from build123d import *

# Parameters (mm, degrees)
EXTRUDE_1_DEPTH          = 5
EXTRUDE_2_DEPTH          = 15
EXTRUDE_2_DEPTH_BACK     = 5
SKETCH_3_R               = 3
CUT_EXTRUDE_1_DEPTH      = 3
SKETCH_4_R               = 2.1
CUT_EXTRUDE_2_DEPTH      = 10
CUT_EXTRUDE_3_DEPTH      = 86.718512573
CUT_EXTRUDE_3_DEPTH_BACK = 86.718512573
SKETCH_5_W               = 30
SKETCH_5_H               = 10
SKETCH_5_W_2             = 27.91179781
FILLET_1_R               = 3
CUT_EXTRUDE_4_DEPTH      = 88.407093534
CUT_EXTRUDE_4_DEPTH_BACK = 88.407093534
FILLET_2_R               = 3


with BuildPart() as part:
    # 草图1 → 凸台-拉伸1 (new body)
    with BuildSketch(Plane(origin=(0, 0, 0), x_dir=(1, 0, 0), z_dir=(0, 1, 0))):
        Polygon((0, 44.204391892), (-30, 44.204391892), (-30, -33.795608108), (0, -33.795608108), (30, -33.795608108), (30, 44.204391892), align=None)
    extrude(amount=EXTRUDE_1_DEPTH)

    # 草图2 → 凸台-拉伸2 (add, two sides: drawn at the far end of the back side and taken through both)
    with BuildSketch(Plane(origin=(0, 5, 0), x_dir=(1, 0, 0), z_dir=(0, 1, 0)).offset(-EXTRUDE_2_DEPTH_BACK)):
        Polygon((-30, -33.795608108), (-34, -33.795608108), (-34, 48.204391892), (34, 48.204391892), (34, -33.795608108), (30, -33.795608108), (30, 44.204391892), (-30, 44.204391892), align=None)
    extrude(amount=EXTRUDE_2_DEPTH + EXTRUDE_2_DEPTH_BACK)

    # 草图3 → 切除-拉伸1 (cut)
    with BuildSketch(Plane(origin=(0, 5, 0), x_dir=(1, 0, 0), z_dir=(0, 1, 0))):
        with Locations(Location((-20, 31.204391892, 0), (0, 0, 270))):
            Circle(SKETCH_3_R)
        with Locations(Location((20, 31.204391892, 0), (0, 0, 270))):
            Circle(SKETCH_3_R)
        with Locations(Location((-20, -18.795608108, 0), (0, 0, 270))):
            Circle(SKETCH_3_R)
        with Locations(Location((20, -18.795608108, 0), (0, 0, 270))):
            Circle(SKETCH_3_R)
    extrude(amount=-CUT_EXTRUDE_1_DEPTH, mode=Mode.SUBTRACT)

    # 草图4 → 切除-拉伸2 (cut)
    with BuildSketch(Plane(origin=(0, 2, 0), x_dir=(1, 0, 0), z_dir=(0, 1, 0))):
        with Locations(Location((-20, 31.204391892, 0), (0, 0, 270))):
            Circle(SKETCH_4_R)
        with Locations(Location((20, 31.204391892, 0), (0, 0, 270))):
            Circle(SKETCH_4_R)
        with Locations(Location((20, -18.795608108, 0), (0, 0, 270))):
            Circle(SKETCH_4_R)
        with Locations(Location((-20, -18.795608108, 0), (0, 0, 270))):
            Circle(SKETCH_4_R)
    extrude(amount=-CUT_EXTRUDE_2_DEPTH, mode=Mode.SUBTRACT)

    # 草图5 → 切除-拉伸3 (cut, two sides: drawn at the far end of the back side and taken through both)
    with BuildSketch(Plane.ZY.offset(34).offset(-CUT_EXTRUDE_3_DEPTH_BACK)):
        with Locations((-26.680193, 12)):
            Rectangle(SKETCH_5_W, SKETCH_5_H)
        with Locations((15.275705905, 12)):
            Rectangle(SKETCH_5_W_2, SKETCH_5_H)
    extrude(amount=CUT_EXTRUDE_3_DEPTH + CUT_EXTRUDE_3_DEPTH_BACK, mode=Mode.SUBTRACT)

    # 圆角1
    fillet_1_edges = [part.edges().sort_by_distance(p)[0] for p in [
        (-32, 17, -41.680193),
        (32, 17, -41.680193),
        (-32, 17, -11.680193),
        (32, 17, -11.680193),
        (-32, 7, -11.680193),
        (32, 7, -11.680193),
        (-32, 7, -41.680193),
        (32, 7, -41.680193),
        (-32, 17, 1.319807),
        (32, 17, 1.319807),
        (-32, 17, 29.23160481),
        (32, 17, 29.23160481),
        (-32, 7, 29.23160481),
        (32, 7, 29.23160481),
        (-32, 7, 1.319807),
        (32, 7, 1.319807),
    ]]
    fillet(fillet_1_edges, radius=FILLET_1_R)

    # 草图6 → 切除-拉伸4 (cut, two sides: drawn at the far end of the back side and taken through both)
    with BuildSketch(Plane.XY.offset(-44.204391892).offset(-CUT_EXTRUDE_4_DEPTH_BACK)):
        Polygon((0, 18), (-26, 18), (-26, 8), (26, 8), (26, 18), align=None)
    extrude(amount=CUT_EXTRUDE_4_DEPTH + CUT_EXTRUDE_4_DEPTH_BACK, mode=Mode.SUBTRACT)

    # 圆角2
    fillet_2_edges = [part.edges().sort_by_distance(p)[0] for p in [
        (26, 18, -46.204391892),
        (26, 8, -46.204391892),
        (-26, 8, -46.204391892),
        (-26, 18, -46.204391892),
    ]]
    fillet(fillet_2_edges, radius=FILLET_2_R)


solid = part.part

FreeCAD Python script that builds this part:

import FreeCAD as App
import Part
import Sketcher

V = App.Vector
Q = App.Units.Quantity


def edges_at(feature, points):
    """Names of the edges that pass closest to the given points."""
    edges = feature.Shape.Edges
    near = lambda p: min(range(len(edges)), key=lambda i: edges[i].distToShape(Part.Vertex(*p))[0])
    return sorted({f"Edge{near(p) + 1}" for p in points})

doc = App.newDocument("Part")
params = doc.addObject("Spreadsheet::Sheet", "Params")
for row, (alias, value) in enumerate([
    ("sketch1_width", "60 mm"),
    ("sketch1_height", "78 mm"),
    ("pad1_length", "5 mm"),
    ("sketch2_width", "4 mm"),
    ("sketch2_width2", "60 mm"),
    ("sketch2_height", "78 mm"),
    ("sketch2_height2", "82 mm"),
    ("pad2_length", "15 mm"),
    ("pad2_length2", "5 mm"),
    ("sketch3_diameter", "6 mm"),
    ("pocket1_length", "3 mm"),
    ("sketch4_diameter", "4.2 mm"),
    ("pocket2_length", "10 mm"),
    ("sketch5_width", "10 mm"),
    ("sketch5_height", "30 mm"),
    ("fillet_radius", "3 mm"),
    ("sketch6_width", "52 mm"),
    ("sketch6_height", "10 mm"),
    ("fillet2_radius", "3 mm"),
], start=1):
    params.set(f"A{row}", alias)
    params.set(f"B{row}", "=" + value)
    params.setAlias(f"B{row}", alias)

body = doc.addObject("PartDesign::Body", "Body")

# Sketch on XZ plane
sketch1 = body.newObject("Sketcher::SketchObject", "Sketch")
sketch1.AttachmentSupport = (doc.getObject("XZ_Plane"), [""])
sketch1.MapMode = "FlatFace"
sketch1.addGeometry([
    Part.LineSegment(V(-30, -44, 0), V(-30, 34, 0)),
    Part.LineSegment(V(-30, 34, 0), V(30, 34, 0)),
    Part.LineSegment(V(30, 34, 0), V(30, -44, 0)),
    Part.LineSegment(V(30, -44, 0), V(-30, -44, 0)),
], False)
sketch1.addConstraint([
    Sketcher.Constraint("Coincident", 0, 2, 1, 1),
    Sketcher.Constraint("Coincident", 1, 2, 2, 1),
    Sketcher.Constraint("Coincident", 2, 2, 3, 1),
    Sketcher.Constraint("Coincident", 3, 2, 0, 1),
    Sketcher.Constraint("Vertical", 0),
    Sketcher.Constraint("Horizontal", 1),
    Sketcher.Constraint("Vertical", 2),
    Sketcher.Constraint("Horizontal", 3),
    Sketcher.Constraint("DistanceX", 1, 1, 1, 2, Q("60 mm")),
    Sketcher.Constraint("DistanceY", 0, 1, 0, 2, Q("78 mm")),
    Sketcher.Constraint("DistanceX", 0, 2, -1, 1, Q("30 mm")),
    Sketcher.Constraint("DistanceY", -1, 1, 0, 2, Q("33.795608 mm")),
])
sketch1.setExpression("Constraints[8]", "Params.sketch1_width")
sketch1.setExpression("Constraints[9]", "Params.sketch1_height")
pad1 = body.newObject("PartDesign::Pad", "Pad")
pad1.Profile = sketch1
pad1.setExpression("Length", "Params.pad1_length")
pad1.Reversed = True

# Sketch on XZ plane
sketch2 = body.newObject("Sketcher::SketchObject", "Sketch001")
sketch2.AttachmentSupport = (doc.getObject("XZ_Plane"), [""])
sketch2.MapMode = "FlatFace"
sketch2.AttachmentOffset = App.Placement(V(0, 0, -5), App.Rotation())
sketch2.addGeometry([
    Part.LineSegment(V(-34, 33.8, 0), V(-30, 33.8, 0)),  # 0
    Part.LineSegment(V(-30, 33.8, 0), V(-30, -44.2, 0)),  # 1
    Part.LineSegment(V(-30, -44.2, 0), V(30, -44.2, 0)),  # 2
    Part.LineSegment(V(30, -44.2, 0), V(30, 33.8, 0)),  # 3
    Part.LineSegment(V(30, 33.8, 0), V(34, 33.8, 0)),  # 4
    Part.LineSegment(V(34, 33.8, 0), V(34, -48.2, 0)),  # 5
    Part.LineSegment(V(34, -48.2, 0), V(-34, -48.2, 0)),  # 6
    Part.LineSegment(V(-34, -48.2, 0), V(-34, 33.8, 0)),  # 7
], False)
sketch2.addConstraint([
    Sketcher.Constraint("Coincident", 0, 2, 1, 1),
    Sketcher.Constraint("Coincident", 1, 2, 2, 1),
    Sketcher.Constraint("Coincident", 2, 2, 3, 1),
    Sketcher.Constraint("Coincident", 3, 2, 4, 1),
    Sketcher.Constraint("Coincident", 4, 2, 5, 1),
    Sketcher.Constraint("Coincident", 5, 2, 6, 1),
    Sketcher.Constraint("Coincident", 6, 2, 7, 1),
    Sketcher.Constraint("Coincident", 7, 2, 0, 1),
    Sketcher.Constraint("Horizontal", 0),
    Sketcher.Constraint("Vertical", 1),
    Sketcher.Constraint("Horizontal", 2),
    Sketcher.Constraint("Vertical", 3),
    Sketcher.Constraint("Horizontal", 4),
    Sketcher.Constraint("Vertical", 5),
    Sketcher.Constraint("Horizontal", 6),
    Sketcher.Constraint("Vertical", 7),
    Sketcher.Constraint("Symmetric", 0, 2, 3, 2, -2),
    Sketcher.Constraint("Equal", 0, 4),
    Sketcher.Constraint("DistanceX", 0, 1, 0, 2, Q("4 mm")),
    Sketcher.Constraint("DistanceX", 2, 1, 2, 2, Q("60 mm")),
    Sketcher.Constraint("DistanceY", 1, 2, 1, 1, Q("78 mm")),
    Sketcher.Constraint("DistanceY", 5, 2, 5, 1, Q("82 mm")),
    Sketcher.Constraint("DistanceY", -1, 1, 0, 2, Q("33.795608 mm")),
])
sketch2.setExpression("Constraints[18]", "Params.sketch2_width")
sketch2.setExpression("Constraints[19]", "Params.sketch2_width2")
sketch2.setExpression("Constraints[20]", "Params.sketch2_height")
sketch2.setExpression("Constraints[21]", "Params.sketch2_height2")
pad2 = body.newObject("PartDesign::Pad", "Pad001")
pad2.Profile = sketch2
pad2.Type = "TwoLengths"
pad2.setExpression("Length", "Params.pad2_length")
pad2.setExpression("Length2", "Params.pad2_length2")
pad2.Reversed = True

# Sketch on XZ plane
sketch3 = body.newObject("Sketcher::SketchObject", "Sketch002")
sketch3.AttachmentSupport = (doc.getObject("XZ_Plane"), [""])
sketch3.MapMode = "FlatFace"
sketch3.AttachmentOffset = App.Placement(V(0, 0, -5), App.Rotation())
sketch3.addGeometry([
    Part.Circle(V(-20, -31.2, 0), V(0, 0, 1), 3),
    Part.Circle(V(20, -31.2, 0), V(0, 0, 1), 3),
    Part.Circle(V(-20, 18.8, 0), V(0, 0, 1), 3),
    Part.Circle(V(20, 18.8, 0), V(0, 0, 1), 3),
], False)
sketch3.addConstraint([
    Sketcher.Constraint("Equal", 0, 1),
    Sketcher.Constraint("Equal", 1, 2),
    Sketcher.Constraint("Equal", 2, 3),
    Sketcher.Constraint("Symmetric", 0, 3, 1, 3, -2),
    Sketcher.Constraint("Symmetric", 2, 3, 3, 3, -2),
    Sketcher.Constraint("Vertical", 0, 3, 2, 3),
    Sketcher.Constraint("Diameter", 0, Q("6 mm")),
    Sketcher.Constraint("DistanceX", 0, 3, -1, 1, Q("20 mm")),
    Sketcher.Constraint("DistanceY", 0, 3, 2, 3, Q("50 mm")),
    Sketcher.Constraint("DistanceY", 0, 3, -1, 1, Q("31.204392 mm")),
])
sketch3.setExpression("Constraints[6]", "Params.sketch3_diameter")
pocket1 = body.newObject("PartDesign::Pocket", "Pocket")
pocket1.Profile = sketch3
pocket1.setExpression("Length", "Params.pocket1_length")
pocket1.Reversed = True

# Sketch on XZ plane
sketch4 = body.newObject("Sketcher::SketchObject", "Sketch003")
sketch4.AttachmentSupport = (doc.getObject("XZ_Plane"), [""])
sketch4.MapMode = "FlatFace"
sketch4.AttachmentOffset = App.Placement(V(0, 0, -2), App.Rotation())
sketch4.addGeometry([
    Part.Circle(V(-20, -31.2, 0), V(0, 0, 1), 2.1),
    Part.Circle(V(20, -31.2, 0), V(0, 0, 1), 2.1),
    Part.Circle(V(20, 18.8, 0), V(0, 0, 1), 2.1),
    Part.Circle(V(-20, 18.8, 0), V(0, 0, 1), 2.1),
], False)
sketch4.addConstraint([
    Sketcher.Constraint("Equal", 0, 1),
    Sketcher.Constraint("Equal", 1, 2),
    Sketcher.Constraint("Equal", 2, 3),
    Sketcher.Constraint("Symmetric", 0, 3, 1, 3, -2),
    Sketcher.Constraint("Symmetric", 2, 3, 3, 3, -2),
    Sketcher.Constraint("Vertical", 1, 3, 2, 3),
    Sketcher.Constraint("Diameter", 0, Q("4.2 mm")),
    Sketcher.Constraint("DistanceX", 0, 3, -1, 1, Q("20 mm")),
    Sketcher.Constraint("DistanceY", 1, 3, 2, 3, Q("50 mm")),
    Sketcher.Constraint("DistanceY", 0, 3, -1, 1, Q("31.204392 mm")),
])
sketch4.setExpression("Constraints[6]", "Params.sketch4_diameter")
pocket2 = body.newObject("PartDesign::Pocket", "Pocket001")
pocket2.Profile = sketch4
pocket2.setExpression("Length", "Params.pocket2_length")
pocket2.Reversed = True

# Sketch on YZ plane
sketch5 = body.newObject("Sketcher::SketchObject", "Sketch004")
sketch5.AttachmentSupport = (doc.getObject("YZ_Plane"), [""])
sketch5.MapMode = "FlatFace"
sketch5.AttachmentOffset = App.Placement(V(0, 0, -34), App.Rotation())
sketch5.addGeometry([
    Part.LineSegment(V(17, -42, 0), V(7, -42, 0)),  # 0
    Part.LineSegment(V(7, -42, 0), V(7, -12, 0)),  # 1
    Part.LineSegment(V(7, -12, 0), V(17, -12, 0)),  # 2
    Part.LineSegment(V(17, -12, 0), V(17, -42, 0)),  # 3
    Part.LineSegment(V(17, 1, 0), V(7, 1, 0)),  # 4
    Part.LineSegment(V(7, 1, 0), V(7, 29, 0)),  # 5
    Part.LineSegment(V(7, 29, 0), V(17, 29, 0)),  # 6
    Part.LineSegment(V(17, 29, 0), V(17, 1, 0)),  # 7
], False)
sketch5.addConstraint([
    Sketcher.Constraint("Coincident", 0, 2, 1, 1),
    Sketcher.Constraint("Coincident", 1, 2, 2, 1),
    Sketcher.Constraint("Coincident", 2, 2, 3, 1),
    Sketcher.Constraint("Coincident", 3, 2, 0, 1),
    Sketcher.Constraint("Coincident", 4, 2, 5, 1),
    Sketcher.Constraint("Coincident", 5, 2, 6, 1),
    Sketcher.Constraint("Coincident", 6, 2, 7, 1),
    Sketcher.Constraint("Coincident", 7, 2, 4, 1),
    Sketcher.Constraint("Horizontal", 0),
    Sketcher.Constraint("Vertical", 1),
    Sketcher.Constraint("Horizontal", 2),
    Sketcher.Constraint("Vertical", 3),
    Sketcher.Constraint("Horizontal", 4),
    Sketcher.Constraint("Vertical", 5),
    Sketcher.Constraint("Horizontal", 6),
    Sketcher.Constraint("Vertical", 7),
    Sketcher.Constraint("Vertical", 1, 2, 4, 2),
    Sketcher.Constraint("Vertical", 3, 2, 6, 2),
    Sketcher.Constraint("DistanceX", 0, 2, 0, 1, Q("10 mm")),
    Sketcher.Constraint("DistanceY", 1, 1, 1, 2, Q("30 mm")),
    Sketcher.Constraint("DistanceX", -1, 1, 0, 2, Q("7 mm")),
    Sketcher.Constraint("DistanceY", 1, 2, 4, 2, Q("13 mm")),
    Sketcher.Constraint("DistanceY", 5, 1, 5, 2, Q("27.911798 mm")),
    Sketcher.Constraint("DistanceY", 0, 2, -1, 1, Q("41.680193 mm")),
])
sketch5.setExpression("Constraints[18]", "Params.sketch5_width")
sketch5.setExpression("Constraints[19]", "Params.sketch5_height")
pocket3 = body.newObject("PartDesign::Pocket", "Pocket002")
pocket3.Profile = sketch5
pocket3.Type = "ThroughAll"
pocket3.Midplane = True
doc.recompute()

fillet = body.newObject("PartDesign::Fillet", "Fillet")
fillet.Base = (pocket3, edges_at(pocket3, [
    (-32, 17, -41.68),
    (32, 17, -41.68),
    (-32, 17, -11.68),
    (32, 17, -11.68),
    (-32, 7, -11.68),
    (32, 7, -11.68),
    (-32, 7, -41.68),
    (32, 7, -41.68),
    (-32, 17, 1.32),
    (32, 17, 1.32),
    (-32, 17, 29.232),
    (32, 17, 29.232),
    (-32, 7, 29.232),
    (32, 7, 29.232),
    (-32, 7, 1.32),
    (32, 7, 1.32),
]))
fillet.setExpression("Radius", "Params.fillet_radius")

# Sketch on XY plane
sketch6 = body.newObject("Sketcher::SketchObject", "Sketch005")
sketch6.AttachmentSupport = (doc.getObject("XY_Plane"), [""])
sketch6.MapMode = "FlatFace"
sketch6.AttachmentOffset = App.Placement(V(0, 0, -44.204392), App.Rotation())
sketch6.addGeometry([
    Part.LineSegment(V(-26, 18, 0), V(-26, 8, 0)),
    Part.LineSegment(V(-26, 8, 0), V(26, 8, 0)),
    Part.LineSegment(V(26, 8, 0), V(26, 18, 0)),
    Part.LineSegment(V(26, 18, 0), V(-26, 18, 0)),
], False)
sketch6.addConstraint([
    Sketcher.Constraint("Coincident", 0, 2, 1, 1),
    Sketcher.Constraint("Coincident", 1, 2, 2, 1),
    Sketcher.Constraint("Coincident", 2, 2, 3, 1),
    Sketcher.Constraint("Coincident", 3, 2, 0, 1),
    Sketcher.Constraint("Vertical", 0),
    Sketcher.Constraint("Horizontal", 1),
    Sketcher.Constraint("Vertical", 2),
    Sketcher.Constraint("Horizontal", 3),
    Sketcher.Constraint("DistanceX", 1, 1, 1, 2, Q("52 mm")),
    Sketcher.Constraint("DistanceY", 0, 2, 0, 1, Q("10 mm")),
    Sketcher.Constraint("DistanceX", 0, 2, -1, 1, Q("26 mm")),
    Sketcher.Constraint("DistanceY", -1, 1, 0, 2, Q("8 mm")),
])
sketch6.setExpression("Constraints[8]", "Params.sketch6_width")
sketch6.setExpression("Constraints[9]", "Params.sketch6_height")
pocket4 = body.newObject("PartDesign::Pocket", "Pocket003")
pocket4.Profile = sketch6
pocket4.Type = "ThroughAll"
pocket4.Midplane = True
doc.recompute()

fillet2 = body.newObject("PartDesign::Fillet", "Fillet001")
fillet2.Base = (pocket4, edges_at(pocket4, [
    (26, 18, -46.204),
    (26, 8, -46.204),
    (-26, 8, -46.204),
    (-26, 18, -46.204),
]))
fillet2.setExpression("Radius", "Params.fillet2_radius")

doc.recompute()
